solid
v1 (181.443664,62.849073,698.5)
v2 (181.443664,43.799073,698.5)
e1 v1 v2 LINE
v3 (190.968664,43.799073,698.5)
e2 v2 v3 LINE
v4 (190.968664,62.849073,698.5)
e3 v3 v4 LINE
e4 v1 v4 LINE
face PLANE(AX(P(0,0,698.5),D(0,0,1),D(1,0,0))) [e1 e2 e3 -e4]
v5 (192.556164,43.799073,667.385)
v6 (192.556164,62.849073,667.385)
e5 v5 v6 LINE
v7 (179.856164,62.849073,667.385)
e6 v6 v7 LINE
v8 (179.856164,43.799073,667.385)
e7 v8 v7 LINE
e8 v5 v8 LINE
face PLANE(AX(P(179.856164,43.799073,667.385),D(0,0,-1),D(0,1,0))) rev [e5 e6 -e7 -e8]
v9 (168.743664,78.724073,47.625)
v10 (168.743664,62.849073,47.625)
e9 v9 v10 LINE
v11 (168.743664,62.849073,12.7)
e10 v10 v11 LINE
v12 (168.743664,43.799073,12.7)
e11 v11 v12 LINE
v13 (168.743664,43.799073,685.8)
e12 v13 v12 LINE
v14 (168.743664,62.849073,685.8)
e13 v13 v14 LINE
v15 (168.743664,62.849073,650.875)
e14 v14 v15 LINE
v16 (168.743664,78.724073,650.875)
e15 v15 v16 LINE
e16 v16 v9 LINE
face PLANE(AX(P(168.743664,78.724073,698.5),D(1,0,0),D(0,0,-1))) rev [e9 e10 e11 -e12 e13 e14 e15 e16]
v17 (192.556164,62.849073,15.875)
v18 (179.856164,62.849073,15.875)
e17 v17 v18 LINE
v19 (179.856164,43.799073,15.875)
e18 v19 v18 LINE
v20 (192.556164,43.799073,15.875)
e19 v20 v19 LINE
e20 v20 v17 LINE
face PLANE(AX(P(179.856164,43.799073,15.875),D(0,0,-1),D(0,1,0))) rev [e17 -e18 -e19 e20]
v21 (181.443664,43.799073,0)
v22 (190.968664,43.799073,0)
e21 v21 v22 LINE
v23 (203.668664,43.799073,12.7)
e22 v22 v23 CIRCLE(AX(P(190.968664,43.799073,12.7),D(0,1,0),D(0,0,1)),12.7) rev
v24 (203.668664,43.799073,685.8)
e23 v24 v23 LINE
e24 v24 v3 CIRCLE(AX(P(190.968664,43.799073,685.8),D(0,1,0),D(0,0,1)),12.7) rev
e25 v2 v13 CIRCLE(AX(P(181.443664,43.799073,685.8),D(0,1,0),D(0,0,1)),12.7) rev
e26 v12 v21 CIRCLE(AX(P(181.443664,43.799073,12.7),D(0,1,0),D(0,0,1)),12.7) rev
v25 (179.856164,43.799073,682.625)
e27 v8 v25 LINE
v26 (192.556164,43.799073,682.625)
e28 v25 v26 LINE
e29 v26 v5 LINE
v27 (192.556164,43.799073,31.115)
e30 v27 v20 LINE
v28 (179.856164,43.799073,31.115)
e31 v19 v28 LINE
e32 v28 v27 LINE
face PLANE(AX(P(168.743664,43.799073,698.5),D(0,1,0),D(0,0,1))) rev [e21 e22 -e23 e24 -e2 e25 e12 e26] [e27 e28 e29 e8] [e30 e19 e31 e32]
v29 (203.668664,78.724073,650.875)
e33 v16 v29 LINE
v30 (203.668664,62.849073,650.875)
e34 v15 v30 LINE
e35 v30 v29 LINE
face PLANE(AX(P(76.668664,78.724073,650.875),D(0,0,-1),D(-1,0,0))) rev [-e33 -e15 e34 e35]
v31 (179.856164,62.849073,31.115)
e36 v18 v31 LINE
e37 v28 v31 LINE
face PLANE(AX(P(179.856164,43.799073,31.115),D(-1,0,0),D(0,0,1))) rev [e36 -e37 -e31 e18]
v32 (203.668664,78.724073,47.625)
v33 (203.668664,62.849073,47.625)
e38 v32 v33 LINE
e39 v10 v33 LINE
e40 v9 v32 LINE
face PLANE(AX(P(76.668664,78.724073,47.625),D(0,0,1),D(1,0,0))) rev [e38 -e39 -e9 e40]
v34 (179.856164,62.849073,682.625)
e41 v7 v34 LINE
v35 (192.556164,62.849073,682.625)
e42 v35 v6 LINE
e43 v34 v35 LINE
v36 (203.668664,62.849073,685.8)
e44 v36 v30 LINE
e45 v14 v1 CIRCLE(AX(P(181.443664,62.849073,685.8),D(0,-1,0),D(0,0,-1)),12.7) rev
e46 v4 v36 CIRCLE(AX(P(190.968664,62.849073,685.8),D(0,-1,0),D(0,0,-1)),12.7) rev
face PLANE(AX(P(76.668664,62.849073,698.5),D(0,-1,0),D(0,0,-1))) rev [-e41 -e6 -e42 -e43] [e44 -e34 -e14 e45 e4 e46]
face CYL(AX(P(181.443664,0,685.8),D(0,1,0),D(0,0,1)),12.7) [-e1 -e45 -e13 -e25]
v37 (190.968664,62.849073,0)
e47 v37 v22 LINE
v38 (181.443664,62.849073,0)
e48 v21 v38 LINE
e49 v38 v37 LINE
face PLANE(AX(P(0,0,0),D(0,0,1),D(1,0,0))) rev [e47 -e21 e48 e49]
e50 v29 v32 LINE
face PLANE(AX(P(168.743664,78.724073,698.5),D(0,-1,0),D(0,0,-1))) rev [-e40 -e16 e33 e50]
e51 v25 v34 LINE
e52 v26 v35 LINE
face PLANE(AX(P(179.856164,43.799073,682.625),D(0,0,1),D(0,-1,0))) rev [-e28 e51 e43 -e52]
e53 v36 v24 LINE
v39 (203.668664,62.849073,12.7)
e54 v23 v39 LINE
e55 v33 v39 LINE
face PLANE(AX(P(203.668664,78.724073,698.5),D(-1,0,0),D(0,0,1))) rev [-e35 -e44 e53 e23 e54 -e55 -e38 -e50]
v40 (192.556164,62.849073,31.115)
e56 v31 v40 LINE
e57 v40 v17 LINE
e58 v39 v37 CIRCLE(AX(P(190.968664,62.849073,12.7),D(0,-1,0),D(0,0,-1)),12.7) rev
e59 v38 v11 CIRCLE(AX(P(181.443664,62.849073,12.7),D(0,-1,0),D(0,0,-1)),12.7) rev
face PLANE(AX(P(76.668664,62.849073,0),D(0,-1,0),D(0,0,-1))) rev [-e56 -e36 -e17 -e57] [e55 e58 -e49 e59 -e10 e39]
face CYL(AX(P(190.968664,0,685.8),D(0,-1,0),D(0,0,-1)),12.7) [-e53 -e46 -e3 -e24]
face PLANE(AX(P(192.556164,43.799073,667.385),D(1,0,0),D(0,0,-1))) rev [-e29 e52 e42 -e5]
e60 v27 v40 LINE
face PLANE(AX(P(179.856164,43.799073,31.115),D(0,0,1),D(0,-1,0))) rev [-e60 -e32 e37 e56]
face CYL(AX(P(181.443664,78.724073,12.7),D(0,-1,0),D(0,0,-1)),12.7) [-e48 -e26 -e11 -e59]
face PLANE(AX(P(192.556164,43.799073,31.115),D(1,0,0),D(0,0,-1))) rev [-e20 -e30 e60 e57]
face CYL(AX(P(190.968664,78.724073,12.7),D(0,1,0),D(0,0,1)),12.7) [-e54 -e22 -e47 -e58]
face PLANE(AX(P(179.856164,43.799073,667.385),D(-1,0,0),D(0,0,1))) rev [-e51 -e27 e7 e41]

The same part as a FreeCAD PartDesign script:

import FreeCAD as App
import Part
import Sketcher
from FreeCAD import Vector
Q = App.Units.Quantity


def edges_at(feature, points):
    """Names of the edges that pass closest to the given points."""
    edges = feature.Shape.Edges
    near = lambda p: min(range(len(edges)), key=lambda i: edges[i].distToShape(Part.Vertex(*p))[0])
    return sorted({f"Edge{near(p) + 1}" for p in points})

doc = App.newDocument("Part")
body = doc.addObject("PartDesign::Body", "Body")

sketch1 = body.newObject("Sketcher::SketchObject", "Sketch")
sketch1.AttachmentSupport = (doc.getObject("XY_Plane"), [""])
sketch1.MapMode = "FlatFace"
sketch1.addGeometry(Part.LineSegment(Vector(169, 79, 0), Vector(169, 44, 0)), False)
sketch1.addGeometry(Part.LineSegment(Vector(169, 44, 0), Vector(204, 44, 0)), False)
sketch1.addGeometry(Part.LineSegment(Vector(204, 44, 0), Vector(204, 79, 0)), False)
sketch1.addGeometry(Part.LineSegment(Vector(204, 79, 0), Vector(169, 79, 0)), False)
sketch1.addConstraint(Sketcher.Constraint("Coincident", 0, 2, 1, 1))
sketch1.addConstraint(Sketcher.Constraint("Coincident", 1, 2, 2, 1))
sketch1.addConstraint(Sketcher.Constraint("Coincident", 2, 2, 3, 1))
sketch1.addConstraint(Sketcher.Constraint("Coincident", 3, 2, 0, 1))
sketch1.addConstraint(Sketcher.Constraint("Vertical", 0))
sketch1.addConstraint(Sketcher.Constraint("Horizontal", 1))
sketch1.addConstraint(Sketcher.Constraint("Vertical", 2))
sketch1.addConstraint(Sketcher.Constraint("Horizontal", 3))
sketch1.addConstraint(Sketcher.Constraint("Equal", 3, 0))
sketch1.addConstraint(Sketcher.Constraint("DistanceX", 1, 1, 1, 2, Q("1.375 in")))
sketch1.addConstraint(Sketcher.Constraint("DistanceX", -1, 1, 0, 2, 168.743664))
sketch1.addConstraint(Sketcher.Constraint("DistanceY", -1, 1, 0, 2, 43.799073))
pad1 = body.newObject("PartDesign::Pad", "Pad")
pad1.Profile = sketch1
pad1.Length = Q("27.5 in")

sketch2 = body.newObject("Sketcher::SketchObject", "Sketch001")
sketch2.AttachmentSupport = (doc.getObject("YZ_Plane"), [""])
sketch2.MapMode = "FlatFace"
sketch2.AttachmentOffset = App.Placement(Vector(0, 0, 203.668664), App.Rotation())
sketch2.addGeometry(Part.LineSegment(Vector(79, 48, 0), Vector(63, 48, 0)), False)
sketch2.addGeometry(Part.LineSegment(Vector(63, 48, 0), Vector(63, 0, 0)), False)
sketch2.addGeometry(Part.LineSegment(Vector(63, 0, 0), Vector(79, 0, 0)), False)
sketch2.addGeometry(Part.LineSegment(Vector(79, 0, 0), Vector(79, 48, 0)), False)
sketch2.addGeometry(Part.LineSegment(Vector(79, 698, 0), Vector(63, 698, 0)), False)
sketch2.addGeometry(Part.LineSegment(Vector(63, 698, 0), Vector(63, 651, 0)), False)
sketch2.addGeometry(Part.LineSegment(Vector(63, 651, 0), Vector(79, 651, 0)), False)
sketch2.addGeometry(Part.LineSegment(Vector(79, 651, 0), Vector(79, 698, 0)), False)
sketch2.addConstraint(Sketcher.Constraint("Coincident", 0, 2, 1, 1))
sketch2.addConstraint(Sketcher.Constraint("Coincident", 1, 2, 2, 1))
sketch2.addConstraint(Sketcher.Constraint("Coincident", 2, 2, 3, 1))
sketch2.addConstraint(Sketcher.Constraint("Coincident", 3, 2, 0, 1))
sketch2.addConstraint(Sketcher.Constraint("Coincident", 4, 2, 5, 1))
sketch2.addConstraint(Sketcher.Constraint("Coincident", 5, 2, 6, 1))
sketch2.addConstraint(Sketcher.Constraint("Coincident", 6, 2, 7, 1))
sketch2.addConstraint(Sketcher.Constraint("Coincident", 7, 2, 4, 1))
sketch2.addConstraint(Sketcher.Constraint("Horizontal", 0))
sketch2.addConstraint(Sketcher.Constraint("Vertical", 1))
sketch2.addConstraint(Sketcher.Constraint("Horizontal", 2))
sketch2.addConstraint(Sketcher.Constraint("Vertical", 3))
sketch2.addConstraint(Sketcher.Constraint("Horizontal", 4))
sketch2.addConstraint(Sketcher.Constraint("Vertical", 5))
sketch2.addConstraint(Sketcher.Constraint("Horizontal", 6))
sketch2.addConstraint(Sketcher.Constraint("Vertical", 7))
sketch2.addConstraint(Sketcher.Constraint("PointOnObject", 1, 2, -1))
sketch2.addConstraint(Sketcher.Constraint("Vertical", 1, 2, 4, 2))
sketch2.addConstraint(Sketcher.Constraint("Vertical", 3, 2, 6, 2))
sketch2.addConstraint(Sketcher.Constraint("Equal", 3, 5))
sketch2.addConstraint(Sketcher.Constraint("DistanceY", -1, 1, 4, 2, Q("27.5 in")))
sketch2.addConstraint(Sketcher.Constraint("DistanceX", 0, 2, 0, 1, Q("0.625 in")))
sketch2.addConstraint(Sketcher.Constraint("DistanceY", 1, 2, 1, 1, Q("1.875 in")))
sketch2.addConstraint(Sketcher.Constraint("DistanceX", -1, 1, 0, 2, 62.849073))
pocket1 = body.newObject("PartDesign::Pocket", "Pocket")
pocket1.Profile = sketch2
pocket1.Length = Q("5 in")

sketch3 = body.newObject("Sketcher::SketchObject", "Sketch002")
sketch3.AttachmentSupport = (doc.getObject("XZ_Plane"), [""])
sketch3.MapMode = "FlatFace"
sketch3.AttachmentOffset = App.Placement(Vector(0, 0, -62.849073), App.Rotation())
sketch3.addGeometry(Part.LineSegment(Vector(180, 667, 0), Vector(180, 683, 0)), False)
sketch3.addGeometry(Part.LineSegment(Vector(180, 683, 0), Vector(193, 683, 0)), False)
sketch3.addGeometry(Part.LineSegment(Vector(193, 683, 0), Vector(193, 667, 0)), False)
sketch3.addGeometry(Part.LineSegment(Vector(193, 667, 0), Vector(180, 667, 0)), False)
sketch3.addGeometry(Part.LineSegment(Vector(180, 16, 0), Vector(180, 31, 0)), False)
sketch3.addGeometry(Part.LineSegment(Vector(180, 31, 0), Vector(193, 31, 0)), False)
sketch3.addGeometry(Part.LineSegment(Vector(193, 31, 0), Vector(193, 16, 0)), False)
sketch3.addGeometry(Part.LineSegment(Vector(193, 16, 0), Vector(180, 16, 0)), False)
sketch3.addConstraint(Sketcher.Constraint("Coincident", 0, 2, 1, 1))
sketch3.addConstraint(Sketcher.Constraint("Coincident", 1, 2, 2, 1))
sketch3.addConstraint(Sketcher.Constraint("Coincident", 2, 2, 3, 1))
sketch3.addConstraint(Sketcher.Constraint("Coincident", 3, 2, 0, 1))
sketch3.addConstraint(Sketcher.Constraint("Coincident", 4, 2, 5, 1))
sketch3.addConstraint(Sketcher.Constraint("Coincident", 5, 2, 6, 1))
sketch3.addConstraint(Sketcher.Constraint("Coincident", 6, 2, 7, 1))
sketch3.addConstraint(Sketcher.Constraint("Coincident", 7, 2, 4, 1))
sketch3.addConstraint(Sketcher.Constraint("Vertical", 0))
sketch3.addConstraint(Sketcher.Constraint("Horizontal", 1))
sketch3.addConstraint(Sketcher.Constraint("Vertical", 2))
sketch3.addConstraint(Sketcher.Constraint("Horizontal", 3))
sketch3.addConstraint(Sketcher.Constraint("Vertical", 4))
sketch3.addConstraint(Sketcher.Constraint("Horizontal", 5))
sketch3.addConstraint(Sketcher.Constraint("Vertical", 6))
sketch3.addConstraint(Sketcher.Constraint("Horizontal", 7))
sketch3.addConstraint(Sketcher.Constraint("Vertical", 3, 2, 4, 2))
sketch3.addConstraint(Sketcher.Constraint("Vertical", 2, 2, 5, 2))
sketch3.addConstraint(Sketcher.Constraint("Equal", 2, 4))
sketch3.addConstraint(Sketcher.Constraint("DistanceX", 1, 1, 1, 2, Q("0.5 in")))
sketch3.addConstraint(Sketcher.Constraint("DistanceY", 0, 1, 0, 2, Q("0.6 in")))
sketch3.addConstraint(Sketcher.Constraint("DistanceY", 4, 2, 3, 2, Q("25.05 in")))
sketch3.addConstraint(Sketcher.Constraint("DistanceY", -1, 1, 0, 2, Q("26.875 in")))
sketch3.addConstraint(Sketcher.Constraint("DistanceX", -1, 1, 0, 2, 179.856164))
pocket2 = body.newObject("PartDesign::Pocket", "Pocket001")
pocket2.Profile = sketch3
pocket2.Type = "ThroughAll"
pocket2.Reversed = True
doc.recompute()

fillet = body.newObject("PartDesign::Fillet", "Fillet")
fillet.Base = (pocket2, edges_at(pocket2, [
    (203.669, 53.324, 698.5),
    (168.744, 53.324, 698.5),
    (168.744, 53.324, 0),
    (203.669, 53.324, 0),
]))
fillet.Radius = Q("0.5 in")

doc.recompute()
